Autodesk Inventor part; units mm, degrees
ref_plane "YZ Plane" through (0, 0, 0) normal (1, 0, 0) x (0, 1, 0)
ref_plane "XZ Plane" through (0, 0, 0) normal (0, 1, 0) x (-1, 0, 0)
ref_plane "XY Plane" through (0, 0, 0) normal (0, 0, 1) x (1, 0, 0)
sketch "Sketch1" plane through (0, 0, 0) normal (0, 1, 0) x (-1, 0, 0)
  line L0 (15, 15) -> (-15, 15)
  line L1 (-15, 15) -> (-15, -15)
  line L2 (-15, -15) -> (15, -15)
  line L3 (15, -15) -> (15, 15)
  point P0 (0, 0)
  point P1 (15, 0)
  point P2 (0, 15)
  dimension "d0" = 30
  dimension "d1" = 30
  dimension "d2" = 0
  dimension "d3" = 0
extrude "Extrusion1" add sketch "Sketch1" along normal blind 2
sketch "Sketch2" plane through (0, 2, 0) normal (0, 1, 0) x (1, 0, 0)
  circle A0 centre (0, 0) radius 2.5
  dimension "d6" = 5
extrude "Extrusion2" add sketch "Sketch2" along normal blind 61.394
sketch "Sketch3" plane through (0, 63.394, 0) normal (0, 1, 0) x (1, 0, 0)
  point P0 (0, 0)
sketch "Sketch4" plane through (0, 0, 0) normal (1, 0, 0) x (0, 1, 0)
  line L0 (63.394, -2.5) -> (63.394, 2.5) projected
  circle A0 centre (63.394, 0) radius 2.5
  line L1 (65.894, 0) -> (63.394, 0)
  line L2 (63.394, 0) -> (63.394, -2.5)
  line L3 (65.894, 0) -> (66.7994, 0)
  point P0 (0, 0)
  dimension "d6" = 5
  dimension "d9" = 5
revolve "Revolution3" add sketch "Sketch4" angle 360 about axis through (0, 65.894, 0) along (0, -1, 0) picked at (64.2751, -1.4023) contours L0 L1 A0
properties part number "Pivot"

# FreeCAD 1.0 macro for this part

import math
import FreeCAD as App
import Part
import Sketcher

doc = App.newDocument("Part")
body = doc.addObject("PartDesign::Body", "Body")

sketch1 = doc.addObject("Sketcher::SketchObject", "Sketch")
body.addObject(sketch1)
sketch1.AttachmentSupport = (doc.XZ_Plane, [""])
sketch1.MapMode = "FlatFace"
sketch1.addGeometry([
    Part.LineSegment(App.Vector(-15, -15, 0), App.Vector(-15, 15, 0)),
    Part.LineSegment(App.Vector(-15, 15, 0), App.Vector(15, 15, 0)),
    Part.LineSegment(App.Vector(15, 15, 0), App.Vector(15, -15, 0)),
    Part.LineSegment(App.Vector(15, -15, 0), App.Vector(-15, -15, 0)),
], False)
sketch1.addConstraint([
    Sketcher.Constraint("Coincident", 0, 2, 1, 1),
    Sketcher.Constraint("Coincident", 1, 2, 2, 1),
    Sketcher.Constraint("Coincident", 2, 2, 3, 1),
    Sketcher.Constraint("Coincident", 3, 2, 0, 1),
    Sketcher.Constraint("Vertical", 0),
    Sketcher.Constraint("Horizontal", 1),
    Sketcher.Constraint("Vertical", 2),
    Sketcher.Constraint("Horizontal", 3),
    Sketcher.Constraint("Symmetric", 0, 2, 2, 2, -1, 1),
    Sketcher.Constraint("Equal", 3, 0),
    Sketcher.Constraint("DistanceX", 1, 1, 1, 2, 30.0),
])
pad1 = doc.addObject("PartDesign::Pad", "Pad")
body.addObject(pad1)
pad1.Profile = sketch1
pad1.Length = 2
pad1.Reversed = True

sketch2 = doc.addObject("Sketcher::SketchObject", "Sketch001")
body.addObject(sketch2)
sketch2.AttachmentSupport = (doc.XZ_Plane, [""])
sketch2.MapMode = "FlatFace"
sketch2.AttachmentOffset = App.Placement(App.Vector(0, 0, -2), App.Rotation())
sketch2.addGeometry(Part.Circle(App.Vector(0, 0, 0), App.Vector(0, 0, 1), 2.5), False)
sketch2.addConstraint([
    Sketcher.Constraint("Coincident", 0, 3, -1, 1),
    Sketcher.Constraint("Diameter", 0, 5.0),
])
pad2 = doc.addObject("PartDesign::Pad", "Pad001")
body.addObject(pad2)
pad2.Profile = sketch2
pad2.Length = 61.394
pad2.Reversed = True

sketch3 = doc.addObject("Sketcher::SketchObject", "Sketch002")
body.addObject(sketch3)
sketch3.AttachmentSupport = (doc.YZ_Plane, [""])
sketch3.MapMode = "FlatFace"
sketch3.addGeometry([
    Part.LineSegment(App.Vector(63.4, 0, 0), App.Vector(63.4, -2.5, 0)),
    Part.ArcOfCircle(Part.Circle(App.Vector(63.4, 0, 0), App.Vector(0, 0, 1), 2.5), math.radians(-90), math.radians(0)),
    Part.LineSegment(App.Vector(65.9, 0, 0), App.Vector(63.4, 0, 0)),
], False)
sketch3.addConstraint([
    Sketcher.Constraint("Coincident", 0, 2, 1, 1),
    Sketcher.Constraint("Coincident", 1, 2, 2, 1),
    Sketcher.Constraint("Coincident", 2, 2, 0, 1),
    Sketcher.Constraint("Vertical", 0),
    Sketcher.Constraint("Horizontal", 2),
    Sketcher.Constraint("Coincident", 2, 2, 1, 3),
    Sketcher.Constraint("PointOnObject", 1, 3, -1),
    Sketcher.Constraint("Radius", 1, 2.5),
    Sketcher.Constraint("DistanceX", -1, 1, 1, 3, 63.394),
])
revolution = doc.addObject("PartDesign::Revolution", "Revolution")
body.addObject(revolution)
revolution.Profile = sketch3
revolution.ReferenceAxis = (sketch3, ["H_Axis"])
revolution.Angle = 360

doc.recompute()
